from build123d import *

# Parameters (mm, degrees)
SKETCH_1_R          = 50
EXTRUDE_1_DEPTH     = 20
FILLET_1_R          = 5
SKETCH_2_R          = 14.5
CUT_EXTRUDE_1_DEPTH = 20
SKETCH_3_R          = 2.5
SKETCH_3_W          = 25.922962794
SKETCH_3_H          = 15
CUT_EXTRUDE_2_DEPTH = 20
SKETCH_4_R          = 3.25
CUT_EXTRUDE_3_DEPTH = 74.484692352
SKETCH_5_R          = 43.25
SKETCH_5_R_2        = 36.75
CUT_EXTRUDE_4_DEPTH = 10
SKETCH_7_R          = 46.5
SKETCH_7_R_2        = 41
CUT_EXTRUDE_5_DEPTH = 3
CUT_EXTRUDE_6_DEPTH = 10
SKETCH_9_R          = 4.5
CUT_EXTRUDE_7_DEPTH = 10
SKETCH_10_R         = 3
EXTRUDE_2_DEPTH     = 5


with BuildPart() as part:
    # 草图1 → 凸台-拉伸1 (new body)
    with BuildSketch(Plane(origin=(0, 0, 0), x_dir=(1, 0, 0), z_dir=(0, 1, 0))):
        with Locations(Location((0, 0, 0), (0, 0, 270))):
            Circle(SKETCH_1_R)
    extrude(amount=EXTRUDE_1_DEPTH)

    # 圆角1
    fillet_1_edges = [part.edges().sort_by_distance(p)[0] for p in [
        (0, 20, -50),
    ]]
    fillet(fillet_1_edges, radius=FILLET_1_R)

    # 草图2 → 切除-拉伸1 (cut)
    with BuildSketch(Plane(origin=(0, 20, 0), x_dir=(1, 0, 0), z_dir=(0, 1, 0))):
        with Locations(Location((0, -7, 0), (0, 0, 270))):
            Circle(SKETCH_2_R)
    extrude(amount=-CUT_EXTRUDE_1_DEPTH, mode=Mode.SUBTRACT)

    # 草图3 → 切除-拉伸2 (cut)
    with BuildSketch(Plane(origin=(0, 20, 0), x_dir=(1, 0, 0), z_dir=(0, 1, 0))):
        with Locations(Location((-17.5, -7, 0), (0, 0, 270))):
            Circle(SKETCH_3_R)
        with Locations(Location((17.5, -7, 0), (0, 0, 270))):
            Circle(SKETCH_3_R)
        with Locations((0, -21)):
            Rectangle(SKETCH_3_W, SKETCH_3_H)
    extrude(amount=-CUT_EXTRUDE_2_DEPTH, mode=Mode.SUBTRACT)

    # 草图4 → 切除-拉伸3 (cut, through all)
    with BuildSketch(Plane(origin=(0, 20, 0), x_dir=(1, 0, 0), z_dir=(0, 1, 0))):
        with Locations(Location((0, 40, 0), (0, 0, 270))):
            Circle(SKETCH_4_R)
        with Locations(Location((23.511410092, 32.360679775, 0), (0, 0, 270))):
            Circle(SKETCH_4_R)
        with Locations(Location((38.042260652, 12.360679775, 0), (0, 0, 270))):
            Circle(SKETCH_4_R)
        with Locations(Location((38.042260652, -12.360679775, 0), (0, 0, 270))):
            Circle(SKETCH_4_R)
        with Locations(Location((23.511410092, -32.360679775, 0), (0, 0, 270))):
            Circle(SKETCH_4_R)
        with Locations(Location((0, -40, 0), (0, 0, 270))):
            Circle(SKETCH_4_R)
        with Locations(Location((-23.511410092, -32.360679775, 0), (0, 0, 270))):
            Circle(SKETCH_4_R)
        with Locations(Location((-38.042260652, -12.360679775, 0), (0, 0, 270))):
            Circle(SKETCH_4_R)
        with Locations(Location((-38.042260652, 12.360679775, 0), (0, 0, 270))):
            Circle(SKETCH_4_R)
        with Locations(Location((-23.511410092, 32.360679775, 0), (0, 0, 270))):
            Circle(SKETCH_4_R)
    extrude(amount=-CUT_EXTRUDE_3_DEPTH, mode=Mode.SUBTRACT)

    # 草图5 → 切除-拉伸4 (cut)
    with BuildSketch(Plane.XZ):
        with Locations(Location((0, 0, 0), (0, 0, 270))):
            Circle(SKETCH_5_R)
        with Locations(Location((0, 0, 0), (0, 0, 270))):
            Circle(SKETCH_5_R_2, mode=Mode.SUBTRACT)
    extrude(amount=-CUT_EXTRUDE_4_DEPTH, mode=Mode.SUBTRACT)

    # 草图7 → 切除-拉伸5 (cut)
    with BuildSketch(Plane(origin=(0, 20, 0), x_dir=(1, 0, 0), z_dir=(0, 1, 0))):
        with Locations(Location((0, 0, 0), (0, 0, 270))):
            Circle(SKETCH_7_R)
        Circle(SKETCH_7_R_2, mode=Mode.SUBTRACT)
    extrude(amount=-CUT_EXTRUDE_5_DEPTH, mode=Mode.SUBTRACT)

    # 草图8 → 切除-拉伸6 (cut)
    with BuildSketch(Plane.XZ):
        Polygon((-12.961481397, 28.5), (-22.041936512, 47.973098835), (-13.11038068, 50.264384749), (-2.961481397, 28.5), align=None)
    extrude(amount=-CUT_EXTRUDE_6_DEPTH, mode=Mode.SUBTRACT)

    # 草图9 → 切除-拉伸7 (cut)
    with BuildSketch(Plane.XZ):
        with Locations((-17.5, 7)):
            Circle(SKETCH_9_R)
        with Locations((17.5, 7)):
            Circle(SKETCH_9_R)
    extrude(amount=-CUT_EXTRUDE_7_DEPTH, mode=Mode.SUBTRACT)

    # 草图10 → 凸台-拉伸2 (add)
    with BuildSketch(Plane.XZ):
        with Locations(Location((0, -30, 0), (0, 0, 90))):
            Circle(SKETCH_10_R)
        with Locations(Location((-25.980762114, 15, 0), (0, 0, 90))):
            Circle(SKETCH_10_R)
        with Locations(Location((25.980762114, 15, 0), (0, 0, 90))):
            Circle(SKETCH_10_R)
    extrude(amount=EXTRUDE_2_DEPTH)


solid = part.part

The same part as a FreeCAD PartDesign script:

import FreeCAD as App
import Part
import Sketcher
from FreeCAD import Vector
Q = App.Units.Quantity


def edges_at(feature, points):
    """Names of the edges that pass closest to the given points."""
    edges = feature.Shape.Edges
    near = lambda p: min(range(len(edges)), key=lambda i: edges[i].distToShape(Part.Vertex(*p))[0])
    return sorted({f"Edge{near(p) + 1}" for p in points})

doc = App.newDocument("Part")
params = doc.addObject("Spreadsheet::Sheet", "Params")
for row, (alias, value) in enumerate([
    ("sketch1_diameter", "100 mm"),
    ("pad1_length", "20 mm"),
    ("fillet_radius", "5 mm"),
    ("sketch2_diameter", "29 mm"),
    ("pocket1_length", "20 mm"),
    ("sketch3_diameter", "5 mm"),
    ("sketch3_height", "15 mm"),
    ("pocket2_length", "20 mm"),
    ("sketch4_diameter", "6.5 mm"),
    ("sketch5_diameter", "86.5 mm"),
    ("sketch5_diameter2", "73.5 mm"),
    ("pocket4_length", "10 mm"),
    ("sketch6_diameter", "93 mm"),
    ("sketch6_diameter2", "82 mm"),
    ("pocket5_length", "3 mm"),
    ("sketch7_width", "10 mm"),
    ("pocket6_length", "10 mm"),
    ("sketch8_diameter", "9 mm"),
    ("pocket7_length", "10 mm"),
    ("sketch9_diameter", "6 mm"),
    ("pad2_length", "5 mm"),
], start=1):
    params.set(f"A{row}", alias)
    params.set(f"B{row}", "=" + value)
    params.setAlias(f"B{row}", alias)

body = doc.addObject("PartDesign::Body", "Body")

# Sketch on XZ plane
sketch1 = body.newObject("Sketcher::SketchObject", "Sketch")
sketch1.AttachmentSupport = (doc.getObject("XZ_Plane"), [""])
sketch1.MapMode = "FlatFace"
sketch1.addGeometry(Part.Circle(Vector(0, 0, 0), Vector(0, 0, 1), 50), False)
sketch1.addConstraint([
    Sketcher.Constraint("Coincident", 0, 3, -1, 1),
    Sketcher.Constraint("Diameter", 0, Q("100 mm")),
])
sketch1.setExpression("Constraints[1]", "Params.sketch1_diameter")
pad1 = body.newObject("PartDesign::Pad", "Pad")
pad1.Profile = sketch1
pad1.setExpression("Length", "Params.pad1_length")
pad1.Reversed = True
doc.recompute()

fillet = body.newObject("PartDesign::Fillet", "Fillet")
fillet.Base = (pad1, edges_at(pad1, [(0, 20, -50)]))
fillet.setExpression("Radius", "Params.fillet_radius")

# Sketch on XZ plane
sketch2 = body.newObject("Sketcher::SketchObject", "Sketch001")
sketch2.AttachmentSupport = (doc.getObject("XZ_Plane"), [""])
sketch2.MapMode = "FlatFace"
sketch2.AttachmentOffset = App.Placement(Vector(0, 0, -20), App.Rotation())
sketch2.addGeometry(Part.Circle(Vector(0, 7, 0), Vector(0, 0, 1), 14), False)
sketch2.addConstraint([
    Sketcher.Constraint("PointOnObject", 0, 3, -2),
    Sketcher.Constraint("Diameter", 0, Q("29 mm")),
    Sketcher.Constraint("DistanceY", -1, 1, 0, 3, Q("7 mm")),
])
sketch2.setExpression("Constraints[1]", "Params.sketch2_diameter")
pocket1 = body.newObject("PartDesign::Pocket", "Pocket")
pocket1.Profile = sketch2
pocket1.setExpression("Length", "Params.pocket1_length")
pocket1.Reversed = True

# Sketch on XZ plane
sketch3 = body.newObject("Sketcher::SketchObject", "Sketch002")
sketch3.AttachmentSupport = (doc.getObject("XZ_Plane"), [""])
sketch3.MapMode = "FlatFace"
sketch3.AttachmentOffset = App.Placement(Vector(0, 0, -20), App.Rotation())
sketch3.addGeometry([
    Part.Circle(Vector(-17.5, 7, 0), Vector(0, 0, 1), 2.5),  # 0
    Part.Circle(Vector(17.5, 7, 0), Vector(0, 0, 1), 2.5),  # 1
    Part.LineSegment(Vector(-13, 13.5, 0), Vector(-13, 28.5, 0)),  # 2
    Part.LineSegment(Vector(-13, 28.5, 0), Vector(13, 28.5, 0)),  # 3
    Part.LineSegment(Vector(13, 28.5, 0), Vector(13, 13.5, 0)),  # 4
    Part.LineSegment(Vector(13, 13.5, 0), Vector(-13, 13.5, 0)),  # 5
], False)
sketch3.addConstraint([
    Sketcher.Constraint("Coincident", 2, 2, 3, 1),
    Sketcher.Constraint("Coincident", 3, 2, 4, 1),
    Sketcher.Constraint("Coincident", 4, 2, 5, 1),
    Sketcher.Constraint("Coincident", 5, 2, 2, 1),
    Sketcher.Constraint("Vertical", 2),
    Sketcher.Constraint("Horizontal", 3),
    Sketcher.Constraint("Vertical", 4),
    Sketcher.Constraint("Horizontal", 5),
    Sketcher.Constraint("Equal", 0, 1),
    Sketcher.Constraint("Symmetric", 0, 3, 1, 3, -2),
    Sketcher.Constraint("Diameter", 0, Q("5 mm")),
    Sketcher.Constraint("DistanceY", 2, 1, 2, 2, Q("15 mm")),
    Sketcher.Constraint("DistanceY", -1, 1, 0, 3, Q("7 mm")),
    Sketcher.Constraint("DistanceX", 0, 3, 1, 3, Q("35 mm")),
    Sketcher.Constraint("DistanceY", -1, 1, 2, 2, Q("28.5 mm")),
    Sketcher.Constraint("DistanceX", 3, 1, 3, 2, Q("25.922963 mm")),
    Sketcher.Constraint("DistanceX", 2, 2, -1, 1, Q("12.961481 mm")),
])
sketch3.setExpression("Constraints[10]", "Params.sketch3_diameter")
sketch3.setExpression("Constraints[11]", "Params.sketch3_height")
pocket2 = body.newObject("PartDesign::Pocket", "Pocket001")
pocket2.Profile = sketch3
pocket2.setExpression("Length", "Params.pocket2_length")
pocket2.Reversed = True

# Sketch on XZ plane
sketch4 = body.newObject("Sketcher::SketchObject", "Sketch003")
sketch4.AttachmentSupport = (doc.getObject("XZ_Plane"), [""])
sketch4.MapMode = "FlatFace"
sketch4.AttachmentOffset = App.Placement(Vector(0, 0, -20), App.Rotation())
sketch4.addGeometry([
    Part.Circle(Vector(0, -40, 0), Vector(0, 0, 1), 3.2),  # 0
    Part.Circle(Vector(23.5, -32.4, 0), Vector(0, 0, 1), 3.2),  # 1
    Part.Circle(Vector(38, -12.4, 0), Vector(0, 0, 1), 3.2),  # 2
    Part.Circle(Vector(38, 12.4, 0), Vector(0, 0, 1), 3.2),  # 3
    Part.Circle(Vector(23.5, 32.4, 0), Vector(0, 0, 1), 3.2),  # 4
    Part.Circle(Vector(0, 40, 0), Vector(0, 0, 1), 3.2),  # 5
    Part.Circle(Vector(-23.5, 32.4, 0), Vector(0, 0, 1), 3.2),  # 6
    Part.Circle(Vector(-38, 12.4, 0), Vector(0, 0, 1), 3.2),  # 7
    Part.Circle(Vector(-38, -12.4, 0), Vector(0, 0, 1), 3.2),  # 8
    Part.Circle(Vector(-23.5, -32.4, 0), Vector(0, 0, 1), 3.2),  # 9
], False)
sketch4.addConstraint([
    Sketcher.Constraint("Equal", 0, 1),
    Sketcher.Constraint("Equal", 1, 2),
    Sketcher.Constraint("Equal", 2, 3),
    Sketcher.Constraint("Equal", 3, 4),
    Sketcher.Constraint("Equal", 4, 5),
    Sketcher.Constraint("Equal", 5, 6),
    Sketcher.Constraint("Equal", 6, 7),
    Sketcher.Constraint("Equal", 7, 8),
    Sketcher.Constraint("Equal", 8, 9),
    Sketcher.Constraint("Symmetric", 0, 3, 5, 3, -1, 1),
    Sketcher.Constraint("Symmetric", 1, 3, 6, 3, -1, 1),
    Sketcher.Constraint("Symmetric", 2, 3, 7, 3, -1, 1),
    Sketcher.Constraint("Symmetric", 3, 3, 8, 3, -1, 1),
    Sketcher.Constraint("Symmetric", 4, 3, 9, 3, -1, 1),
    Sketcher.Constraint("Symmetric", 4, 3, 6, 3, -2),
    Sketcher.Constraint("Symmetric", 3, 3, 7, 3, -2),
    Sketcher.Constraint("PointOnObject", 0, 3, -2),
    Sketcher.Constraint("Diameter", 0, Q("6.5 mm")),
    Sketcher.Constraint("DistanceY", 0, 3, -1, 1, Q("40 mm")),
    Sketcher.Constraint("DistanceY", 1, 3, 2, 3, Q("20 mm")),
    Sketcher.Constraint("DistanceX", -1, 1, 1, 3, Q("23.51141 mm")),
    Sketcher.Constraint("DistanceY", 1, 3, -1, 1, Q("32.36068 mm")),
    Sketcher.Constraint("DistanceX", -1, 1, 2, 3, Q("38.042261 mm")),
])
sketch4.setExpression("Constraints[17]", "Params.sketch4_diameter")
pocket3 = body.newObject("PartDesign::Pocket", "Pocket002")
pocket3.Profile = sketch4
pocket3.Type = "ThroughAll"
pocket3.Reversed = True

# Sketch on XZ plane
sketch5 = body.newObject("Sketcher::SketchObject", "Sketch004")
sketch5.AttachmentSupport = (doc.getObject("XZ_Plane"), [""])
sketch5.MapMode = "FlatFace"
sketch5.addGeometry([
    Part.Circle(Vector(0, 0, 0), Vector(0, 0, 1), 43),
    Part.Circle(Vector(0, 0, 0), Vector(0, 0, 1), 37),
], False)
sketch5.addConstraint([
    Sketcher.Constraint("Coincident", 0, 3, -1, 1),
    Sketcher.Constraint("Coincident", 1, 3, -1, 1),
    Sketcher.Constraint("Diameter", 0, Q("86.5 mm")),
    Sketcher.Constraint("Diameter", 1, Q("73.5 mm")),
])
sketch5.setExpression("Constraints[2]", "Params.sketch5_diameter")
sketch5.setExpression("Constraints[3]", "Params.sketch5_diameter2")
pocket4 = body.newObject("PartDesign::Pocket", "Pocket003")
pocket4.Profile = sketch5
pocket4.setExpression("Length", "Params.pocket4_length")

# Sketch on XZ plane
sketch6 = body.newObject("Sketcher::SketchObject", "Sketch005")
sketch6.AttachmentSupport = (doc.getObject("XZ_Plane"), [""])
sketch6.MapMode = "FlatFace"
sketch6.AttachmentOffset = App.Placement(Vector(0, 0, -20), App.Rotation())
sketch6.addGeometry([
    Part.Circle(Vector(0, 0, 0), Vector(0, 0, 1), 46),
    Part.Circle(Vector(0, 0, 0), Vector(0, 0, 1), 41),
], False)
sketch6.addConstraint([
    Sketcher.Constraint("Coincident", 0, 3, -1, 1),
    Sketcher.Constraint("Coincident", 1, 3, -1, 1),
    Sketcher.Constraint("Diameter", 0, Q("93 mm")),
    Sketcher.Constraint("Diameter", 1, Q("82 mm")),
])
sketch6.setExpression("Constraints[2]", "Params.sketch6_diameter")
sketch6.setExpression("Constraints[3]", "Params.sketch6_diameter2")
pocket5 = body.newObject("PartDesign::Pocket", "Pocket004")
pocket5.Profile = sketch6
pocket5.setExpression("Length", "Params.pocket5_length")
pocket5.Reversed = True

# Sketch on XZ plane
sketch7 = body.newObject("Sketcher::SketchObject", "Sketch006")
sketch7.AttachmentSupport = (doc.getObject("XZ_Plane"), [""])
sketch7.MapMode = "FlatFace"
sketch7.addGeometry([
    Part.LineSegment(Vector(-22, 48, 0), Vector(-13, 28, 0)),
    Part.LineSegment(Vector(-13, 28, 0), Vector(-3, 28, 0)),
    Part.LineSegment(Vector(-3, 28, 0), Vector(-13, 50, 0)),
    Part.LineSegment(Vector(-13, 50, 0), Vector(-22, 48, 0)),
], False)
sketch7.addConstraint([
    Sketcher.Constraint("Coincident", 0, 2, 1, 1),
    Sketcher.Constraint("Coincident", 1, 2, 2, 1),
    Sketcher.Constraint("Coincident", 2, 2, 3, 1),
    Sketcher.Constraint("Coincident", 3, 2, 0, 1),
    Sketcher.Constraint("Horizontal", 1),
    Sketcher.Constraint("Parallel", 0, 2),
    Sketcher.Constraint("DistanceX", 1, 1, 1, 2, Q("10 mm")),
    Sketcher.Constraint("Angle", 0, Q("-65 deg")),
    Sketcher.Constraint("DistanceY", -1, 1, 0, 2, Q("28.5 mm")),
    Sketcher.Constraint("DistanceY", -1, 1, 3, 2, Q("47.973099 mm")),
    Sketcher.Constraint("DistanceX", 2, 2, 0, 2, Q("0.148899 mm")),
    Sketcher.Constraint("DistanceX", 0, 2, -1, 1, Q("12.961481 mm")),
])
sketch7.setExpression("Constraints[6]", "Params.sketch7_width")
pocket6 = body.newObject("PartDesign::Pocket", "Pocket005")
pocket6.Profile = sketch7
pocket6.setExpression("Length", "Params.pocket6_length")

# Sketch on XZ plane
sketch8 = body.newObject("Sketcher::SketchObject", "Sketch007")
sketch8.AttachmentSupport = (doc.getObject("XZ_Plane"), [""])
sketch8.MapMode = "FlatFace"
sketch8.addGeometry([
    Part.Circle(Vector(-17.5, 7, 0), Vector(0, 0, 1), 4.5),
    Part.Circle(Vector(17.5, 7, 0), Vector(0, 0, 1), 4.5),
], False)
sketch8.addConstraint([
    Sketcher.Constraint("Equal", 0, 1),
    Sketcher.Constraint("Symmetric", 0, 3, 1, 3, -2),
    Sketcher.Constraint("Diameter", 0, Q("9 mm")),
    Sketcher.Constraint("DistanceY", -1, 1, 0, 3, Q("7 mm")),
    Sketcher.Constraint("DistanceX", 0, 3, 1, 3, Q("35 mm")),
])
sketch8.setExpression("Constraints[2]", "Params.sketch8_diameter")
pocket7 = body.newObject("PartDesign::Pocket", "Pocket006")
pocket7.Profile = sketch8
pocket7.setExpression("Length", "Params.pocket7_length")

# Sketch on XZ plane
sketch9 = body.newObject("Sketcher::SketchObject", "Sketch008")
sketch9.AttachmentSupport = (doc.getObject("XZ_Plane"), [""])
sketch9.MapMode = "FlatFace"
sketch9.addGeometry([
    Part.Circle(Vector(0, -30, 0), Vector(0, 0, 1), 3),
    Part.Circle(Vector(-26, 15, 0), Vector(0, 0, 1), 3),
    Part.Circle(Vector(26, 15, 0), Vector(0, 0, 1), 3),
], False)
sketch9.addConstraint([
    Sketcher.Constraint("Equal", 0, 1),
    Sketcher.Constraint("Equal", 1, 2),
    Sketcher.Constraint("Symmetric", 1, 3, 2, 3, -2),
    Sketcher.Constraint("PointOnObject", 0, 3, -2),
    Sketcher.Constraint("Diameter", 0, Q("6 mm")),
    Sketcher.Constraint("DistanceY", 0, 3, -1, 1, Q("30 mm")),
    Sketcher.Constraint("DistanceY", -1, 1, 1, 3, Q("15 mm")),
    Sketcher.Constraint("DistanceX", 1, 3, -1, 1, Q("25.980762 mm")),
])
sketch9.setExpression("Constraints[4]", "Params.sketch9_diameter")
pad2 = body.newObject("PartDesign::Pad", "Pad001")
pad2.Profile = sketch9
pad2.setExpression("Length", "Params.pad2_length")

doc.recompute()
